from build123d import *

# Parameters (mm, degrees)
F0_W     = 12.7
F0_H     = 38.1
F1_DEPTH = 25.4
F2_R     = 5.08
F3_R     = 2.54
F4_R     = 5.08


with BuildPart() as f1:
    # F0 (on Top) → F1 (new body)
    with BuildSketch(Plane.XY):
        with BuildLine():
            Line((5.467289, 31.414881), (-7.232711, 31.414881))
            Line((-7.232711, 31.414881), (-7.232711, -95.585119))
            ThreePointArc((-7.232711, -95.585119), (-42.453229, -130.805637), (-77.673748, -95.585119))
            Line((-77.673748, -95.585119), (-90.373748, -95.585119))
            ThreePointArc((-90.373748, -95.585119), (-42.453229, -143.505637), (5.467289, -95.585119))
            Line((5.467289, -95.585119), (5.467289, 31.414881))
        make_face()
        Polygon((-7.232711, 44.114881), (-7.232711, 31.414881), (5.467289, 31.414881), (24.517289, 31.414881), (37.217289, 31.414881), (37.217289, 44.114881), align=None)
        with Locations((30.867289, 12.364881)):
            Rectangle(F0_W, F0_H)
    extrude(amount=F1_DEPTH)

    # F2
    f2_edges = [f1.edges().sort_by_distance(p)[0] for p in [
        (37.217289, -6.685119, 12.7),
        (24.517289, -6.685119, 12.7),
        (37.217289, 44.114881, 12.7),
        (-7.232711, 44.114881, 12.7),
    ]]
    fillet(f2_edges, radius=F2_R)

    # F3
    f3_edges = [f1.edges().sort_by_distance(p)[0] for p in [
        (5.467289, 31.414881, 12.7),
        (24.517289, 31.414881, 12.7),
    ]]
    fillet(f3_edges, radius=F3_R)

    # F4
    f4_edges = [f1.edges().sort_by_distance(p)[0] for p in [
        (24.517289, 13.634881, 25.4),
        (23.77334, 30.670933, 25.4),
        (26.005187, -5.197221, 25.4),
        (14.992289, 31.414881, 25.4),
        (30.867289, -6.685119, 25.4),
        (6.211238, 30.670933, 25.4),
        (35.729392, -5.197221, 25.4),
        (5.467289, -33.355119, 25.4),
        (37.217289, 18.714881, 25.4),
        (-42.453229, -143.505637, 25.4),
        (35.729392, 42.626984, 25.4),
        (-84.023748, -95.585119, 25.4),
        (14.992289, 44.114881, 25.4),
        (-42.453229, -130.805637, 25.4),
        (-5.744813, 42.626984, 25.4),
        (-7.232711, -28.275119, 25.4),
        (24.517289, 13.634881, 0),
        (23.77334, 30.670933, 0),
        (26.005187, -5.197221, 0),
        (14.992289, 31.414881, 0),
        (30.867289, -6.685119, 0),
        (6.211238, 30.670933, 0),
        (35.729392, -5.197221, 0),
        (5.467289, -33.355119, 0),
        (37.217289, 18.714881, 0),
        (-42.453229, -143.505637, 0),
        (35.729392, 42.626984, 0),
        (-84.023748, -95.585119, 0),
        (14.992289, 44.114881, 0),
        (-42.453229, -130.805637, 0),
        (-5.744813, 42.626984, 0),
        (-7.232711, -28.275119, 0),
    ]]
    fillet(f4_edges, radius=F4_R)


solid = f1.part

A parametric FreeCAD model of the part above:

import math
import FreeCAD as App
import Part
import Sketcher

V = App.Vector
Q = App.Units.Quantity


def edges_at(feature, points):
    """Names of the edges that pass closest to the given points."""
    edges = feature.Shape.Edges
    near = lambda p: min(range(len(edges)), key=lambda i: edges[i].distToShape(Part.Vertex(*p))[0])
    return sorted({f"Edge{near(p) + 1}" for p in points})

doc = App.newDocument("Part")
body = doc.addObject("PartDesign::Body", "Body")

# Sketch on XY plane
sketch1 = body.newObject("Sketcher::SketchObject", "Sketch")
sketch1.AttachmentSupport = (doc.getObject("XY_Plane"), [""])
sketch1.MapMode = "FlatFace"
sketch1.addGeometry([
    Part.ArcOfCircle(Part.Circle(V(-42, -96, 0), V(0, 0, 1), 35), math.radians(-180), math.radians(0)),  # 0
    Part.LineSegment(V(-78, -96, 0), V(-90, -96, 0)),  # 1
    Part.ArcOfCircle(Part.Circle(V(-42, -96, 0), V(0, 0, 1), 48), math.radians(-180), math.radians(0)),  # 2
    Part.LineSegment(V(5, -96, 0), V(5, 31, 0)),  # 3
    Part.LineSegment(V(5, 31, 0), V(25, 31, 0)),  # 4
    Part.LineSegment(V(25, 31, 0), V(25, -7, 0)),  # 5
    Part.LineSegment(V(25, -7, 0), V(37, -7, 0)),  # 6
    Part.LineSegment(V(37, -7, 0), V(37, 44, 0)),  # 7
    Part.LineSegment(V(37, 44, 0), V(-7, 44, 0)),  # 8
    Part.LineSegment(V(-7, 44, 0), V(-7, -96, 0)),  # 9
], False)
sketch1.addConstraint([
    Sketcher.Constraint("Coincident", 0, 1, 1, 1),
    Sketcher.Constraint("Coincident", 1, 2, 2, 1),
    Sketcher.Constraint("Tangent", 2, 2, 3, 1),
    Sketcher.Constraint("Coincident", 3, 2, 4, 1),
    Sketcher.Constraint("Coincident", 4, 2, 5, 1),
    Sketcher.Constraint("Coincident", 5, 2, 6, 1),
    Sketcher.Constraint("Coincident", 6, 2, 7, 1),
    Sketcher.Constraint("Coincident", 7, 2, 8, 1),
    Sketcher.Constraint("Coincident", 8, 2, 9, 1),
    Sketcher.Constraint("Tangent", 9, 2, 0, 2),
    Sketcher.Constraint("Horizontal", 1),
    Sketcher.Constraint("Vertical", 3),
    Sketcher.Constraint("Horizontal", 4),
    Sketcher.Constraint("Vertical", 5),
    Sketcher.Constraint("Horizontal", 6),
    Sketcher.Constraint("Vertical", 7),
    Sketcher.Constraint("Horizontal", 8),
    Sketcher.Constraint("Vertical", 9),
    Sketcher.Constraint("Coincident", 2, 3, 0, 3),
    Sketcher.Constraint("Horizontal", 2, 3, 0, 1),
    Sketcher.Constraint("Equal", 1, 6),
    Sketcher.Constraint("DistanceY", 3, 1, 3, 2, Q("5 in")),
    Sketcher.Constraint("DistanceY", 7, 1, 7, 2, Q("2 in")),
    Sketcher.Constraint("DistanceX", 1, 2, 1, 1, Q("0.5 in")),
    Sketcher.Constraint("DistanceY", 5, 2, 5, 1, Q("1.5 in")),
    Sketcher.Constraint("DistanceX", 4, 1, 4, 2, Q("0.75 in")),
    Sketcher.Constraint("Radius", 0, Q("35.220518 mm")),
    Sketcher.Constraint("DistanceX", 0, 3, -1, 1, Q("42.453229 mm")),
    Sketcher.Constraint("DistanceY", 0, 3, -1, 1, Q("95.585118 mm")),
])
pad1 = body.newObject("PartDesign::Pad", "Pad")
pad1.Profile = sketch1
pad1.Length = Q("1 in")
doc.recompute()

fillet = body.newObject("PartDesign::Fillet", "Fillet")
fillet.Base = (pad1, edges_at(pad1, [
    (37.217, -6.685, 12.7),
    (24.517, -6.685, 12.7),
    (37.217, 44.115, 12.7),
    (-7.233, 44.115, 12.7),
]))
fillet.Radius = Q("0.2 in")
doc.recompute()

fillet2 = body.newObject("PartDesign::Fillet", "Fillet001")
fillet2.Base = (fillet, edges_at(fillet, [(5.467, 31.415, 12.7), (24.517, 31.415, 12.7)]))
fillet2.Radius = Q("0.1 in")
doc.recompute()

fillet3 = body.newObject("PartDesign::Fillet", "Fillet002")
fillet3.Base = (fillet2, edges_at(fillet2, [
    (24.517, 13.635, 25.4),
    (23.773, 30.671, 25.4),
    (26.005, -5.197, 25.4),
    (14.992, 31.415, 25.4),
    (30.867, -6.685, 25.4),
    (6.211, 30.671, 25.4),
    (35.729, -5.197, 25.4),
    (5.467, -33.355, 25.4),
    (37.217, 18.715, 25.4),
    (-42.453, -143.506, 25.4),
    (35.729, 42.627, 25.4),
    (-84.024, -95.585, 25.4),
    (14.992, 44.115, 25.4),
    (-42.453, -130.806, 25.4),
    (-5.745, 42.627, 25.4),
    (-7.233, -28.275, 25.4),
    (24.517, 13.635, 0),
    (23.773, 30.671, 0),
    (26.005, -5.197, 0),
    (14.992, 31.415, 0),
    (30.867, -6.685, 0),
    (6.211, 30.671, 0),
    (35.729, -5.197, 0),
    (5.467, -33.355, 0),
    (37.217, 18.715, 0),
    (-42.453, -143.506, 0),
    (35.729, 42.627, 0),
    (-84.024, -95.585, 0),
    (14.992, 44.115, 0),
    (-42.453, -130.806, 0),
    (-5.745, 42.627, 0),
    (-7.233, -28.275, 0),
]))
fillet3.Radius = Q("0.2 in")

doc.recompute()
